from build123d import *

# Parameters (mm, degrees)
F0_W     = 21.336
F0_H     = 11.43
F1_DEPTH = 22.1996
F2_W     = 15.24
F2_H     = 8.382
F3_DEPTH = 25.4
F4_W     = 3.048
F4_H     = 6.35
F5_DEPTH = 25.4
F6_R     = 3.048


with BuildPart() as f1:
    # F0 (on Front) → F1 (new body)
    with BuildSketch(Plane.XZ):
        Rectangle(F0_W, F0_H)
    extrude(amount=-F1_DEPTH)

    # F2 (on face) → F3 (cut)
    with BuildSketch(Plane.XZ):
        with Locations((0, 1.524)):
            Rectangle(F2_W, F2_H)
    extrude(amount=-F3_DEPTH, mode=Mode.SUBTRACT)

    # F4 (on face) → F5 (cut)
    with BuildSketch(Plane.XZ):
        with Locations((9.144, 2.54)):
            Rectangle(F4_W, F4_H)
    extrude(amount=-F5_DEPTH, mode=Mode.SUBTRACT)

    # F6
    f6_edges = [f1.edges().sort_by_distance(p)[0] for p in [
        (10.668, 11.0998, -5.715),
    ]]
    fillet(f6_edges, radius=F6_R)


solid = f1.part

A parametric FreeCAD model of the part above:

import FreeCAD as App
import Part
import Sketcher
Q = App.Units.Quantity


def edges_at(feature, points):
    """Names of the edges that pass closest to the given points."""
    edges = feature.Shape.Edges
    near = lambda p: min(range(len(edges)), key=lambda i: edges[i].distToShape(Part.Vertex(*p))[0])
    return sorted({f"Edge{near(p) + 1}" for p in points})


def add_polygon(sketch, points):
    """Adds a closed chain of lines whose ends are joined by coincident constraints."""
    first, n = sketch.GeometryCount, len(points)
    for a, b in zip(points, points[1:] + points[:1]):
        sketch.addGeometry(Part.LineSegment(App.Vector(*a, 0), App.Vector(*b, 0)), False)
    for i in range(n):
        sketch.addConstraint(Sketcher.Constraint("Coincident", first + i, 2, first + (i + 1) % n, 1))

doc = App.newDocument("Part")
body = doc.addObject("PartDesign::Body", "Body")

# Sketch on XZ plane
sketch1 = body.newObject("Sketcher::SketchObject", "Sketch")
sketch1.AttachmentSupport = (doc.getObject("XZ_Plane"), [""])
sketch1.MapMode = "FlatFace"
add_polygon(sketch1, [(-10.668, 5.715), (-10.668, -5.715), (10.668, -5.715), (10.668, 5.715)])  # lines 0-3
sketch1.addConstraint([
    Sketcher.Constraint("Vertical", 0),
    Sketcher.Constraint("Horizontal", 1),
    Sketcher.Constraint("Vertical", 2),
    Sketcher.Constraint("Horizontal", 3),
    Sketcher.Constraint("Symmetric", 0, 2, 2, 2, -1, 1),
    Sketcher.Constraint("DistanceX", 1, 1, 1, 2, Q("0.84 in")),
    Sketcher.Constraint("DistanceY", 0, 2, 0, 1, Q("0.45 in")),
])
pad1 = body.newObject("PartDesign::Pad", "Pad")
pad1.Profile = sketch1
pad1.Length = Q("0.874 in")
pad1.Reversed = True

# Sketch on XZ plane
sketch2 = body.newObject("Sketcher::SketchObject", "Sketch001")
sketch2.AttachmentSupport = (doc.getObject("XZ_Plane"), [""])
sketch2.MapMode = "FlatFace"
add_polygon(sketch2, [(-7.62, 5.715), (-7.62, -2.667), (7.62, -2.667), (7.62, 5.715)])  # lines 0-3
sketch2.addConstraint([
    Sketcher.Constraint("Vertical", 0),
    Sketcher.Constraint("Horizontal", 1),
    Sketcher.Constraint("Vertical", 2),
    Sketcher.Constraint("Horizontal", 3),
    Sketcher.Constraint("DistanceX", 1, 1, 1, 2, Q("0.6 in")),
    Sketcher.Constraint("DistanceY", 0, 2, 0, 1, Q("0.33 in")),
    Sketcher.Constraint("DistanceX", 0, 2, -1, 1, Q("0.3 in")),
    Sketcher.Constraint("DistanceY", 0, 2, -1, 1, Q("0.105 in")),
])
pocket1 = body.newObject("PartDesign::Pocket", "Pocket")
pocket1.Profile = sketch2
pocket1.Length = Q("1 in")

# Sketch on XZ plane
sketch3 = body.newObject("Sketcher::SketchObject", "Sketch002")
sketch3.AttachmentSupport = (doc.getObject("XZ_Plane"), [""])
sketch3.MapMode = "FlatFace"
add_polygon(sketch3, [(7.62, 5.715), (7.62, -0.635), (10.668, -0.635), (10.668, 5.715)])  # lines 0-3
sketch3.addConstraint([
    Sketcher.Constraint("Vertical", 0),
    Sketcher.Constraint("Horizontal", 1),
    Sketcher.Constraint("Vertical", 2),
    Sketcher.Constraint("Horizontal", 3),
    Sketcher.Constraint("DistanceX", 1, 1, 1, 2, Q("0.12 in")),
    Sketcher.Constraint("DistanceY", 0, 2, 0, 1, Q("0.25 in")),
    Sketcher.Constraint("DistanceX", -1, 1, 0, 2, Q("0.3 in")),
    Sketcher.Constraint("DistanceY", 0, 2, -1, 1, Q("0.025 in")),
])
pocket2 = body.newObject("PartDesign::Pocket", "Pocket001")
pocket2.Profile = sketch3
pocket2.Length = Q("1 in")
doc.recompute()

fillet = body.newObject("PartDesign::Fillet", "Fillet")
fillet.Base = (pocket2, edges_at(pocket2, [(10.668, 11.1, -5.715)]))
fillet.Radius = Q("0.12 in")

doc.recompute()
